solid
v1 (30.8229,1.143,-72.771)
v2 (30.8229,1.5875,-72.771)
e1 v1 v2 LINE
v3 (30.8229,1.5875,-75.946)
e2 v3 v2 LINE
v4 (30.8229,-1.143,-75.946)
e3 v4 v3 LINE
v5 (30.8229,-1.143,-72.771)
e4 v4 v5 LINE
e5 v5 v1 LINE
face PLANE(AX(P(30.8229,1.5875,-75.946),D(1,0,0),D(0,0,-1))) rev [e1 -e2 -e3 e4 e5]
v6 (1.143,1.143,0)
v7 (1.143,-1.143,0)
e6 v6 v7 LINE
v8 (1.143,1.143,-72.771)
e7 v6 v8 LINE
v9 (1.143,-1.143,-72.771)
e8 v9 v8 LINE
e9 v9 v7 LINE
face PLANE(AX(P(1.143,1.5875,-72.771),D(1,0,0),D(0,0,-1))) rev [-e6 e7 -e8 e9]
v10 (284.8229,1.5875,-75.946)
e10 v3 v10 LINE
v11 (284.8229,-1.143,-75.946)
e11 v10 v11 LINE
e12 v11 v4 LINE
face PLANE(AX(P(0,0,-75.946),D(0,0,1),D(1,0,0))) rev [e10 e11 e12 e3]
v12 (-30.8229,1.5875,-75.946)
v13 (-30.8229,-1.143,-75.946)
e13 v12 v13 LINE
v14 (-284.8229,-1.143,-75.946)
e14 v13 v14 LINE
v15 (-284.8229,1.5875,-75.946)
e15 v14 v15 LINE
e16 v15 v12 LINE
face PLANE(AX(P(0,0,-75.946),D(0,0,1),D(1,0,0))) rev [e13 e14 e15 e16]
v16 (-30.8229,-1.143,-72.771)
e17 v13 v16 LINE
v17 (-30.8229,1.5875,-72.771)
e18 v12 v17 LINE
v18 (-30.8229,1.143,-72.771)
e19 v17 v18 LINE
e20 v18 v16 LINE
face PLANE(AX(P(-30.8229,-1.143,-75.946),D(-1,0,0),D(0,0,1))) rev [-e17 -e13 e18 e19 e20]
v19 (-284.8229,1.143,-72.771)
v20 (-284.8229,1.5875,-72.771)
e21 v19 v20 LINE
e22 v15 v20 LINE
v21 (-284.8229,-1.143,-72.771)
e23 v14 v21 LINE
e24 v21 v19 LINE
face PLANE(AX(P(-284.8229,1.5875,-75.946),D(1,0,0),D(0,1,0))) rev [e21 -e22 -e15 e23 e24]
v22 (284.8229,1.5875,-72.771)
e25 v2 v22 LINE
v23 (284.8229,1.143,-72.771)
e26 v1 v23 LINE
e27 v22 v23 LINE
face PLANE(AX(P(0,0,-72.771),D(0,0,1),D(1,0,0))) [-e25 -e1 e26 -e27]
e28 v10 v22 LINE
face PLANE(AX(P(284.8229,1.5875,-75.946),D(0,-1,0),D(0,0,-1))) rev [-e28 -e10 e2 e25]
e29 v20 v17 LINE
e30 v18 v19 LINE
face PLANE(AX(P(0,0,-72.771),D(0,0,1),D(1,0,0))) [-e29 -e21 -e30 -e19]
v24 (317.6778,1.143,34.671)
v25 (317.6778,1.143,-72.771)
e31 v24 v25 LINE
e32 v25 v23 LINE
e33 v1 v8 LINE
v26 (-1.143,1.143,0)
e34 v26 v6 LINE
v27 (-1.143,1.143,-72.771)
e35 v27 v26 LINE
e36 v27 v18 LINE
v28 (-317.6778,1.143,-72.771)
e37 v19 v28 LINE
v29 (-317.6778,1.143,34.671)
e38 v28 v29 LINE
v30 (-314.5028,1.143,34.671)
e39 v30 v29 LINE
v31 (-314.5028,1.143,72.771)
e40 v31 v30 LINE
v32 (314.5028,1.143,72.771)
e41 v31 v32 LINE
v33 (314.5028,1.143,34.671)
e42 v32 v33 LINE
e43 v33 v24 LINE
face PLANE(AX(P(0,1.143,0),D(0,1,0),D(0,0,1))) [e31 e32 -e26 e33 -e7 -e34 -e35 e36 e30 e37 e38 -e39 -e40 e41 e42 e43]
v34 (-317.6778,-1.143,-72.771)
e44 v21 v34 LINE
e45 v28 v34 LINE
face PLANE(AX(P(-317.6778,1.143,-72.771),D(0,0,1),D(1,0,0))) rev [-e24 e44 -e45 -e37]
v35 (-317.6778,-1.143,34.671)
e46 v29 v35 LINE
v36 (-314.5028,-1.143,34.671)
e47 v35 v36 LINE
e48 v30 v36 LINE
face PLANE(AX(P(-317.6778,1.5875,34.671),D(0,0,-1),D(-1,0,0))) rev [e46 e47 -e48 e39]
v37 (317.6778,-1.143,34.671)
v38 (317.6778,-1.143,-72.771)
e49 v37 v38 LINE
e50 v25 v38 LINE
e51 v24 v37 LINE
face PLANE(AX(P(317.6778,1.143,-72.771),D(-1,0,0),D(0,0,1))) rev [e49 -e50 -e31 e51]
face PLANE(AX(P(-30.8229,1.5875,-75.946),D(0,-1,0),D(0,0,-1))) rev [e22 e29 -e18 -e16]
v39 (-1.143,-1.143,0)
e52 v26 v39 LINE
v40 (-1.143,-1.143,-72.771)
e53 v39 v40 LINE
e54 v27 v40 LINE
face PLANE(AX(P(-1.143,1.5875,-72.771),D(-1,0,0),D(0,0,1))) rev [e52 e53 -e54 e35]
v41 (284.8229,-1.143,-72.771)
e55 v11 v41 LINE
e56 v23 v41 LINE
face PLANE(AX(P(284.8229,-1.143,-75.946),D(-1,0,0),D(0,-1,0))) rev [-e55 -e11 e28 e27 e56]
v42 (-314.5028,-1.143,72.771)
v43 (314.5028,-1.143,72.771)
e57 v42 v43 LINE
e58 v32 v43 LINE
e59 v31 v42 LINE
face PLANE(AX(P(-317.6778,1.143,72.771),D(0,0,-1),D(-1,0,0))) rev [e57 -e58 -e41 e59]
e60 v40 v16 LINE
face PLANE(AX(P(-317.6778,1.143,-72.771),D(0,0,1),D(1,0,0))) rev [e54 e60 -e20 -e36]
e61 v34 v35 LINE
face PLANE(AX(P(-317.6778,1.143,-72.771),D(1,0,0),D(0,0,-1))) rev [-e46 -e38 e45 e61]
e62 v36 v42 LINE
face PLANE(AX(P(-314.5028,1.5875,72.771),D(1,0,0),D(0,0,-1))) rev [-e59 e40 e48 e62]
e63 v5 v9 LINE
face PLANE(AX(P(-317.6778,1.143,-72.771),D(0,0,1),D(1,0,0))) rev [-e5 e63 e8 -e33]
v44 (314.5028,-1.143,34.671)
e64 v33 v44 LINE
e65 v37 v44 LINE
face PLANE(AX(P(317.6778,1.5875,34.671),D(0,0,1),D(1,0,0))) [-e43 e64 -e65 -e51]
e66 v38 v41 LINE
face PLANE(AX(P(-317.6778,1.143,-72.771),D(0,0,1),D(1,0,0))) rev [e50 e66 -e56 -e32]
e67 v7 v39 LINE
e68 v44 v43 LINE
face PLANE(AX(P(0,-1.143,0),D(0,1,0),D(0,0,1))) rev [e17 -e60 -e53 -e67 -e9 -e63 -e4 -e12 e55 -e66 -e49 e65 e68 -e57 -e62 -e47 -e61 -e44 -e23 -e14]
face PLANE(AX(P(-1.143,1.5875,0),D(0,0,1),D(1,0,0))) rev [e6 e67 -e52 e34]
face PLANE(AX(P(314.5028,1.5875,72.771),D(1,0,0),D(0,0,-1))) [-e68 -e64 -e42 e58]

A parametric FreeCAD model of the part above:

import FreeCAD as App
import Part
import Sketcher

V = App.Vector
Q = App.Units.Quantity

doc = App.newDocument("Part")
body = doc.addObject("PartDesign::Body", "Body")

# Sketch on XZ plane
sketch1 = doc.addObject("Sketcher::SketchObject", "Sketch")
body.addObject(sketch1)
sketch1.AttachmentSupport = (doc.XZ_Plane, [""])
sketch1.MapMode = "FlatFace"
sketch1.addGeometry([
    Part.LineSegment(V(-318, -73, 0), V(-318, 73, 0)),
    Part.LineSegment(V(-318, 73, 0), V(318, 73, 0)),
    Part.LineSegment(V(318, 73, 0), V(318, -73, 0)),
    Part.LineSegment(V(318, -73, 0), V(-318, -73, 0)),
], False)
sketch1.addConstraint([
    Sketcher.Constraint("Coincident", 0, 2, 1, 1),
    Sketcher.Constraint("Coincident", 1, 2, 2, 1),
    Sketcher.Constraint("Coincident", 2, 2, 3, 1),
    Sketcher.Constraint("Coincident", 3, 2, 0, 1),
    Sketcher.Constraint("Vertical", 0),
    Sketcher.Constraint("Horizontal", 1),
    Sketcher.Constraint("Vertical", 2),
    Sketcher.Constraint("Horizontal", 3),
    Sketcher.Constraint("Symmetric", 0, 2, 2, 2, -1, 1),
    Sketcher.Constraint("DistanceY", 0, 1, 0, 2, Q("5.73 in")),
    Sketcher.Constraint("DistanceX", 1, 1, 1, 2, Q("25.014 in")),
])
pad1 = doc.addObject("PartDesign::Pad", "Pad")
body.addObject(pad1)
pad1.Profile = sketch1
pad1.Length = Q("0.09 in")
pad1.Midplane = True

# Sketch on XY plane
sketch2 = doc.addObject("Sketcher::SketchObject", "Sketch001")
body.addObject(sketch2)
sketch2.AttachmentSupport = (doc.XY_Plane, [""])
sketch2.MapMode = "FlatFace"
sketch2.AttachmentOffset = App.Placement(V(0, 0, -2.865 * 25.4), App.Rotation())
sketch2.addGeometry([
    Part.LineSegment(V(284.8, 1.6, 0), V(284.8, -1.1, 0)),  # 0
    Part.LineSegment(V(284.8, -1.1, 0), V(30.8, -1.1, 0)),  # 1
    Part.LineSegment(V(30.8, -1.1, 0), V(30.8, 1.6, 0)),  # 2
    Part.LineSegment(V(30.8, 1.6, 0), V(284.8, 1.6, 0)),  # 3
    Part.LineSegment(V(-30.8, 1.6, 0), V(-30.8, -1.1, 0)),  # 4
    Part.LineSegment(V(-30.8, -1.1, 0), V(-284.8, -1.1, 0)),  # 5
    Part.LineSegment(V(-284.8, -1.1, 0), V(-284.8, 1.6, 0)),  # 6
    Part.LineSegment(V(-284.8, 1.6, 0), V(-30.8, 1.6, 0)),  # 7
], False)
sketch2.addConstraint([
    Sketcher.Constraint("Coincident", 0, 2, 1, 1),
    Sketcher.Constraint("Coincident", 1, 2, 2, 1),
    Sketcher.Constraint("Coincident", 2, 2, 3, 1),
    Sketcher.Constraint("Coincident", 3, 2, 0, 1),
    Sketcher.Constraint("Coincident", 4, 2, 5, 1),
    Sketcher.Constraint("Coincident", 5, 2, 6, 1),
    Sketcher.Constraint("Coincident", 6, 2, 7, 1),
    Sketcher.Constraint("Coincident", 7, 2, 4, 1),
    Sketcher.Constraint("Vertical", 0),
    Sketcher.Constraint("Horizontal", 1),
    Sketcher.Constraint("Vertical", 2),
    Sketcher.Constraint("Horizontal", 3),
    Sketcher.Constraint("Vertical", 4),
    Sketcher.Constraint("Horizontal", 5),
    Sketcher.Constraint("Vertical", 6),
    Sketcher.Constraint("Horizontal", 7),
    Sketcher.Constraint("Symmetric", 1, 2, 4, 2, -2),
    Sketcher.Constraint("Symmetric", 3, 2, 6, 2, -2),
    Sketcher.Constraint("DistanceX", 1, 2, 1, 1, Q("10 in")),
    Sketcher.Constraint("DistanceY", 0, 2, 0, 1, Q("0.1075 in")),
    Sketcher.Constraint("DistanceY", 0, 2, -1, 1, Q("0.045 in")),
    Sketcher.Constraint("DistanceX", 4, 2, 1, 2, Q("2.427 in")),
])
pad2 = doc.addObject("PartDesign::Pad", "Pad001")
body.addObject(pad2)
pad2.Profile = sketch2
pad2.Length = Q("0.125 in")
pad2.Reversed = True

# Sketch on XZ plane
sketch3 = doc.addObject("Sketcher::SketchObject", "Sketch002")
body.addObject(sketch3)
sketch3.AttachmentSupport = (doc.XZ_Plane, [""])
sketch3.MapMode = "FlatFace"
sketch3.AttachmentOffset = App.Placement(V(0, 0, 0.045 * 25.4), App.Rotation())
sketch3.addGeometry([
    Part.LineSegment(V(-317.7, 72.8, 0), V(-317.7, 34.7, 0)),
    Part.LineSegment(V(-317.7, 34.7, 0), V(-314.5, 34.7, 0)),
    Part.LineSegment(V(-314.5, 34.7, 0), V(-314.5, 72.8, 0)),
    Part.LineSegment(V(-314.5, 72.8, 0), V(-317.7, 72.8, 0)),
], False)
sketch3.addConstraint([
    Sketcher.Constraint("Coincident", 0, 2, 1, 1),
    Sketcher.Constraint("Coincident", 1, 2, 2, 1),
    Sketcher.Constraint("Coincident", 2, 2, 3, 1),
    Sketcher.Constraint("Coincident", 3, 2, 0, 1),
    Sketcher.Constraint("Vertical", 0),
    Sketcher.Constraint("Horizontal", 1),
    Sketcher.Constraint("Vertical", 2),
    Sketcher.Constraint("Horizontal", 3),
    Sketcher.Constraint("DistanceY", 0, 2, 0, 1, Q("1.5 in")),
    Sketcher.Constraint("DistanceX", 1, 1, 1, 2, Q("0.125 in")),
    Sketcher.Constraint("DistanceX", 0, 2, -1, 1, Q("12.507 in")),
    Sketcher.Constraint("DistanceY", -1, 1, 0, 2, Q("1.365 in")),
])
pocket1 = doc.addObject("PartDesign::Pocket", "Pocket")
body.addObject(pocket1)
pocket1.Profile = sketch3
pocket1.Type = "ThroughAll"
doc.recompute()

mirrored = doc.addObject("PartDesign::Mirrored", "Mirrored")
body.addObject(mirrored)
mirrored.Originals = [pocket1]
mirrored.MirrorPlane = (doc.YZ_Plane, [""])
body.Tip = mirrored

# Sketch on XZ plane
sketch4 = doc.addObject("Sketcher::SketchObject", "Sketch003")
body.addObject(sketch4)
sketch4.AttachmentSupport = (doc.XZ_Plane, [""])
sketch4.MapMode = "FlatFace"
sketch4.AttachmentOffset = App.Placement(V(0, 0, 0.045 * 25.4), App.Rotation())
sketch4.addGeometry([
    Part.LineSegment(V(-1.1, 0, 0), V(-1.1, -72.8, 0)),
    Part.LineSegment(V(-1.1, -72.8, 0), V(1.1, -72.8, 0)),
    Part.LineSegment(V(1.1, -72.8, 0), V(1.1, 0, 0)),
    Part.LineSegment(V(1.1, 0, 0), V(-1.1, 0, 0)),
], False)
sketch4.addConstraint([
    Sketcher.Constraint("Coincident", 0, 2, 1, 1),
    Sketcher.Constraint("Coincident", 1, 2, 2, 1),
    Sketcher.Constraint("Coincident", 2, 2, 3, 1),
    Sketcher.Constraint("Coincident", 3, 2, 0, 1),
    Sketcher.Constraint("Vertical", 0),
    Sketcher.Constraint("Horizontal", 1),
    Sketcher.Constraint("Vertical", 2),
    Sketcher.Constraint("Horizontal", 3),
    Sketcher.Constraint("Symmetric", 2, 2, 3, 2, -1, 1),
    Sketcher.Constraint("DistanceX", 1, 1, 1, 2, Q("0.09 in")),
    Sketcher.Constraint("DistanceY", 0, 2, 0, 1, Q("2.865 in")),
])
pocket2 = doc.addObject("PartDesign::Pocket", "Pocket001")
body.addObject(pocket2)
pocket2.Profile = sketch4
pocket2.Type = "ThroughAll"

doc.recompute()
